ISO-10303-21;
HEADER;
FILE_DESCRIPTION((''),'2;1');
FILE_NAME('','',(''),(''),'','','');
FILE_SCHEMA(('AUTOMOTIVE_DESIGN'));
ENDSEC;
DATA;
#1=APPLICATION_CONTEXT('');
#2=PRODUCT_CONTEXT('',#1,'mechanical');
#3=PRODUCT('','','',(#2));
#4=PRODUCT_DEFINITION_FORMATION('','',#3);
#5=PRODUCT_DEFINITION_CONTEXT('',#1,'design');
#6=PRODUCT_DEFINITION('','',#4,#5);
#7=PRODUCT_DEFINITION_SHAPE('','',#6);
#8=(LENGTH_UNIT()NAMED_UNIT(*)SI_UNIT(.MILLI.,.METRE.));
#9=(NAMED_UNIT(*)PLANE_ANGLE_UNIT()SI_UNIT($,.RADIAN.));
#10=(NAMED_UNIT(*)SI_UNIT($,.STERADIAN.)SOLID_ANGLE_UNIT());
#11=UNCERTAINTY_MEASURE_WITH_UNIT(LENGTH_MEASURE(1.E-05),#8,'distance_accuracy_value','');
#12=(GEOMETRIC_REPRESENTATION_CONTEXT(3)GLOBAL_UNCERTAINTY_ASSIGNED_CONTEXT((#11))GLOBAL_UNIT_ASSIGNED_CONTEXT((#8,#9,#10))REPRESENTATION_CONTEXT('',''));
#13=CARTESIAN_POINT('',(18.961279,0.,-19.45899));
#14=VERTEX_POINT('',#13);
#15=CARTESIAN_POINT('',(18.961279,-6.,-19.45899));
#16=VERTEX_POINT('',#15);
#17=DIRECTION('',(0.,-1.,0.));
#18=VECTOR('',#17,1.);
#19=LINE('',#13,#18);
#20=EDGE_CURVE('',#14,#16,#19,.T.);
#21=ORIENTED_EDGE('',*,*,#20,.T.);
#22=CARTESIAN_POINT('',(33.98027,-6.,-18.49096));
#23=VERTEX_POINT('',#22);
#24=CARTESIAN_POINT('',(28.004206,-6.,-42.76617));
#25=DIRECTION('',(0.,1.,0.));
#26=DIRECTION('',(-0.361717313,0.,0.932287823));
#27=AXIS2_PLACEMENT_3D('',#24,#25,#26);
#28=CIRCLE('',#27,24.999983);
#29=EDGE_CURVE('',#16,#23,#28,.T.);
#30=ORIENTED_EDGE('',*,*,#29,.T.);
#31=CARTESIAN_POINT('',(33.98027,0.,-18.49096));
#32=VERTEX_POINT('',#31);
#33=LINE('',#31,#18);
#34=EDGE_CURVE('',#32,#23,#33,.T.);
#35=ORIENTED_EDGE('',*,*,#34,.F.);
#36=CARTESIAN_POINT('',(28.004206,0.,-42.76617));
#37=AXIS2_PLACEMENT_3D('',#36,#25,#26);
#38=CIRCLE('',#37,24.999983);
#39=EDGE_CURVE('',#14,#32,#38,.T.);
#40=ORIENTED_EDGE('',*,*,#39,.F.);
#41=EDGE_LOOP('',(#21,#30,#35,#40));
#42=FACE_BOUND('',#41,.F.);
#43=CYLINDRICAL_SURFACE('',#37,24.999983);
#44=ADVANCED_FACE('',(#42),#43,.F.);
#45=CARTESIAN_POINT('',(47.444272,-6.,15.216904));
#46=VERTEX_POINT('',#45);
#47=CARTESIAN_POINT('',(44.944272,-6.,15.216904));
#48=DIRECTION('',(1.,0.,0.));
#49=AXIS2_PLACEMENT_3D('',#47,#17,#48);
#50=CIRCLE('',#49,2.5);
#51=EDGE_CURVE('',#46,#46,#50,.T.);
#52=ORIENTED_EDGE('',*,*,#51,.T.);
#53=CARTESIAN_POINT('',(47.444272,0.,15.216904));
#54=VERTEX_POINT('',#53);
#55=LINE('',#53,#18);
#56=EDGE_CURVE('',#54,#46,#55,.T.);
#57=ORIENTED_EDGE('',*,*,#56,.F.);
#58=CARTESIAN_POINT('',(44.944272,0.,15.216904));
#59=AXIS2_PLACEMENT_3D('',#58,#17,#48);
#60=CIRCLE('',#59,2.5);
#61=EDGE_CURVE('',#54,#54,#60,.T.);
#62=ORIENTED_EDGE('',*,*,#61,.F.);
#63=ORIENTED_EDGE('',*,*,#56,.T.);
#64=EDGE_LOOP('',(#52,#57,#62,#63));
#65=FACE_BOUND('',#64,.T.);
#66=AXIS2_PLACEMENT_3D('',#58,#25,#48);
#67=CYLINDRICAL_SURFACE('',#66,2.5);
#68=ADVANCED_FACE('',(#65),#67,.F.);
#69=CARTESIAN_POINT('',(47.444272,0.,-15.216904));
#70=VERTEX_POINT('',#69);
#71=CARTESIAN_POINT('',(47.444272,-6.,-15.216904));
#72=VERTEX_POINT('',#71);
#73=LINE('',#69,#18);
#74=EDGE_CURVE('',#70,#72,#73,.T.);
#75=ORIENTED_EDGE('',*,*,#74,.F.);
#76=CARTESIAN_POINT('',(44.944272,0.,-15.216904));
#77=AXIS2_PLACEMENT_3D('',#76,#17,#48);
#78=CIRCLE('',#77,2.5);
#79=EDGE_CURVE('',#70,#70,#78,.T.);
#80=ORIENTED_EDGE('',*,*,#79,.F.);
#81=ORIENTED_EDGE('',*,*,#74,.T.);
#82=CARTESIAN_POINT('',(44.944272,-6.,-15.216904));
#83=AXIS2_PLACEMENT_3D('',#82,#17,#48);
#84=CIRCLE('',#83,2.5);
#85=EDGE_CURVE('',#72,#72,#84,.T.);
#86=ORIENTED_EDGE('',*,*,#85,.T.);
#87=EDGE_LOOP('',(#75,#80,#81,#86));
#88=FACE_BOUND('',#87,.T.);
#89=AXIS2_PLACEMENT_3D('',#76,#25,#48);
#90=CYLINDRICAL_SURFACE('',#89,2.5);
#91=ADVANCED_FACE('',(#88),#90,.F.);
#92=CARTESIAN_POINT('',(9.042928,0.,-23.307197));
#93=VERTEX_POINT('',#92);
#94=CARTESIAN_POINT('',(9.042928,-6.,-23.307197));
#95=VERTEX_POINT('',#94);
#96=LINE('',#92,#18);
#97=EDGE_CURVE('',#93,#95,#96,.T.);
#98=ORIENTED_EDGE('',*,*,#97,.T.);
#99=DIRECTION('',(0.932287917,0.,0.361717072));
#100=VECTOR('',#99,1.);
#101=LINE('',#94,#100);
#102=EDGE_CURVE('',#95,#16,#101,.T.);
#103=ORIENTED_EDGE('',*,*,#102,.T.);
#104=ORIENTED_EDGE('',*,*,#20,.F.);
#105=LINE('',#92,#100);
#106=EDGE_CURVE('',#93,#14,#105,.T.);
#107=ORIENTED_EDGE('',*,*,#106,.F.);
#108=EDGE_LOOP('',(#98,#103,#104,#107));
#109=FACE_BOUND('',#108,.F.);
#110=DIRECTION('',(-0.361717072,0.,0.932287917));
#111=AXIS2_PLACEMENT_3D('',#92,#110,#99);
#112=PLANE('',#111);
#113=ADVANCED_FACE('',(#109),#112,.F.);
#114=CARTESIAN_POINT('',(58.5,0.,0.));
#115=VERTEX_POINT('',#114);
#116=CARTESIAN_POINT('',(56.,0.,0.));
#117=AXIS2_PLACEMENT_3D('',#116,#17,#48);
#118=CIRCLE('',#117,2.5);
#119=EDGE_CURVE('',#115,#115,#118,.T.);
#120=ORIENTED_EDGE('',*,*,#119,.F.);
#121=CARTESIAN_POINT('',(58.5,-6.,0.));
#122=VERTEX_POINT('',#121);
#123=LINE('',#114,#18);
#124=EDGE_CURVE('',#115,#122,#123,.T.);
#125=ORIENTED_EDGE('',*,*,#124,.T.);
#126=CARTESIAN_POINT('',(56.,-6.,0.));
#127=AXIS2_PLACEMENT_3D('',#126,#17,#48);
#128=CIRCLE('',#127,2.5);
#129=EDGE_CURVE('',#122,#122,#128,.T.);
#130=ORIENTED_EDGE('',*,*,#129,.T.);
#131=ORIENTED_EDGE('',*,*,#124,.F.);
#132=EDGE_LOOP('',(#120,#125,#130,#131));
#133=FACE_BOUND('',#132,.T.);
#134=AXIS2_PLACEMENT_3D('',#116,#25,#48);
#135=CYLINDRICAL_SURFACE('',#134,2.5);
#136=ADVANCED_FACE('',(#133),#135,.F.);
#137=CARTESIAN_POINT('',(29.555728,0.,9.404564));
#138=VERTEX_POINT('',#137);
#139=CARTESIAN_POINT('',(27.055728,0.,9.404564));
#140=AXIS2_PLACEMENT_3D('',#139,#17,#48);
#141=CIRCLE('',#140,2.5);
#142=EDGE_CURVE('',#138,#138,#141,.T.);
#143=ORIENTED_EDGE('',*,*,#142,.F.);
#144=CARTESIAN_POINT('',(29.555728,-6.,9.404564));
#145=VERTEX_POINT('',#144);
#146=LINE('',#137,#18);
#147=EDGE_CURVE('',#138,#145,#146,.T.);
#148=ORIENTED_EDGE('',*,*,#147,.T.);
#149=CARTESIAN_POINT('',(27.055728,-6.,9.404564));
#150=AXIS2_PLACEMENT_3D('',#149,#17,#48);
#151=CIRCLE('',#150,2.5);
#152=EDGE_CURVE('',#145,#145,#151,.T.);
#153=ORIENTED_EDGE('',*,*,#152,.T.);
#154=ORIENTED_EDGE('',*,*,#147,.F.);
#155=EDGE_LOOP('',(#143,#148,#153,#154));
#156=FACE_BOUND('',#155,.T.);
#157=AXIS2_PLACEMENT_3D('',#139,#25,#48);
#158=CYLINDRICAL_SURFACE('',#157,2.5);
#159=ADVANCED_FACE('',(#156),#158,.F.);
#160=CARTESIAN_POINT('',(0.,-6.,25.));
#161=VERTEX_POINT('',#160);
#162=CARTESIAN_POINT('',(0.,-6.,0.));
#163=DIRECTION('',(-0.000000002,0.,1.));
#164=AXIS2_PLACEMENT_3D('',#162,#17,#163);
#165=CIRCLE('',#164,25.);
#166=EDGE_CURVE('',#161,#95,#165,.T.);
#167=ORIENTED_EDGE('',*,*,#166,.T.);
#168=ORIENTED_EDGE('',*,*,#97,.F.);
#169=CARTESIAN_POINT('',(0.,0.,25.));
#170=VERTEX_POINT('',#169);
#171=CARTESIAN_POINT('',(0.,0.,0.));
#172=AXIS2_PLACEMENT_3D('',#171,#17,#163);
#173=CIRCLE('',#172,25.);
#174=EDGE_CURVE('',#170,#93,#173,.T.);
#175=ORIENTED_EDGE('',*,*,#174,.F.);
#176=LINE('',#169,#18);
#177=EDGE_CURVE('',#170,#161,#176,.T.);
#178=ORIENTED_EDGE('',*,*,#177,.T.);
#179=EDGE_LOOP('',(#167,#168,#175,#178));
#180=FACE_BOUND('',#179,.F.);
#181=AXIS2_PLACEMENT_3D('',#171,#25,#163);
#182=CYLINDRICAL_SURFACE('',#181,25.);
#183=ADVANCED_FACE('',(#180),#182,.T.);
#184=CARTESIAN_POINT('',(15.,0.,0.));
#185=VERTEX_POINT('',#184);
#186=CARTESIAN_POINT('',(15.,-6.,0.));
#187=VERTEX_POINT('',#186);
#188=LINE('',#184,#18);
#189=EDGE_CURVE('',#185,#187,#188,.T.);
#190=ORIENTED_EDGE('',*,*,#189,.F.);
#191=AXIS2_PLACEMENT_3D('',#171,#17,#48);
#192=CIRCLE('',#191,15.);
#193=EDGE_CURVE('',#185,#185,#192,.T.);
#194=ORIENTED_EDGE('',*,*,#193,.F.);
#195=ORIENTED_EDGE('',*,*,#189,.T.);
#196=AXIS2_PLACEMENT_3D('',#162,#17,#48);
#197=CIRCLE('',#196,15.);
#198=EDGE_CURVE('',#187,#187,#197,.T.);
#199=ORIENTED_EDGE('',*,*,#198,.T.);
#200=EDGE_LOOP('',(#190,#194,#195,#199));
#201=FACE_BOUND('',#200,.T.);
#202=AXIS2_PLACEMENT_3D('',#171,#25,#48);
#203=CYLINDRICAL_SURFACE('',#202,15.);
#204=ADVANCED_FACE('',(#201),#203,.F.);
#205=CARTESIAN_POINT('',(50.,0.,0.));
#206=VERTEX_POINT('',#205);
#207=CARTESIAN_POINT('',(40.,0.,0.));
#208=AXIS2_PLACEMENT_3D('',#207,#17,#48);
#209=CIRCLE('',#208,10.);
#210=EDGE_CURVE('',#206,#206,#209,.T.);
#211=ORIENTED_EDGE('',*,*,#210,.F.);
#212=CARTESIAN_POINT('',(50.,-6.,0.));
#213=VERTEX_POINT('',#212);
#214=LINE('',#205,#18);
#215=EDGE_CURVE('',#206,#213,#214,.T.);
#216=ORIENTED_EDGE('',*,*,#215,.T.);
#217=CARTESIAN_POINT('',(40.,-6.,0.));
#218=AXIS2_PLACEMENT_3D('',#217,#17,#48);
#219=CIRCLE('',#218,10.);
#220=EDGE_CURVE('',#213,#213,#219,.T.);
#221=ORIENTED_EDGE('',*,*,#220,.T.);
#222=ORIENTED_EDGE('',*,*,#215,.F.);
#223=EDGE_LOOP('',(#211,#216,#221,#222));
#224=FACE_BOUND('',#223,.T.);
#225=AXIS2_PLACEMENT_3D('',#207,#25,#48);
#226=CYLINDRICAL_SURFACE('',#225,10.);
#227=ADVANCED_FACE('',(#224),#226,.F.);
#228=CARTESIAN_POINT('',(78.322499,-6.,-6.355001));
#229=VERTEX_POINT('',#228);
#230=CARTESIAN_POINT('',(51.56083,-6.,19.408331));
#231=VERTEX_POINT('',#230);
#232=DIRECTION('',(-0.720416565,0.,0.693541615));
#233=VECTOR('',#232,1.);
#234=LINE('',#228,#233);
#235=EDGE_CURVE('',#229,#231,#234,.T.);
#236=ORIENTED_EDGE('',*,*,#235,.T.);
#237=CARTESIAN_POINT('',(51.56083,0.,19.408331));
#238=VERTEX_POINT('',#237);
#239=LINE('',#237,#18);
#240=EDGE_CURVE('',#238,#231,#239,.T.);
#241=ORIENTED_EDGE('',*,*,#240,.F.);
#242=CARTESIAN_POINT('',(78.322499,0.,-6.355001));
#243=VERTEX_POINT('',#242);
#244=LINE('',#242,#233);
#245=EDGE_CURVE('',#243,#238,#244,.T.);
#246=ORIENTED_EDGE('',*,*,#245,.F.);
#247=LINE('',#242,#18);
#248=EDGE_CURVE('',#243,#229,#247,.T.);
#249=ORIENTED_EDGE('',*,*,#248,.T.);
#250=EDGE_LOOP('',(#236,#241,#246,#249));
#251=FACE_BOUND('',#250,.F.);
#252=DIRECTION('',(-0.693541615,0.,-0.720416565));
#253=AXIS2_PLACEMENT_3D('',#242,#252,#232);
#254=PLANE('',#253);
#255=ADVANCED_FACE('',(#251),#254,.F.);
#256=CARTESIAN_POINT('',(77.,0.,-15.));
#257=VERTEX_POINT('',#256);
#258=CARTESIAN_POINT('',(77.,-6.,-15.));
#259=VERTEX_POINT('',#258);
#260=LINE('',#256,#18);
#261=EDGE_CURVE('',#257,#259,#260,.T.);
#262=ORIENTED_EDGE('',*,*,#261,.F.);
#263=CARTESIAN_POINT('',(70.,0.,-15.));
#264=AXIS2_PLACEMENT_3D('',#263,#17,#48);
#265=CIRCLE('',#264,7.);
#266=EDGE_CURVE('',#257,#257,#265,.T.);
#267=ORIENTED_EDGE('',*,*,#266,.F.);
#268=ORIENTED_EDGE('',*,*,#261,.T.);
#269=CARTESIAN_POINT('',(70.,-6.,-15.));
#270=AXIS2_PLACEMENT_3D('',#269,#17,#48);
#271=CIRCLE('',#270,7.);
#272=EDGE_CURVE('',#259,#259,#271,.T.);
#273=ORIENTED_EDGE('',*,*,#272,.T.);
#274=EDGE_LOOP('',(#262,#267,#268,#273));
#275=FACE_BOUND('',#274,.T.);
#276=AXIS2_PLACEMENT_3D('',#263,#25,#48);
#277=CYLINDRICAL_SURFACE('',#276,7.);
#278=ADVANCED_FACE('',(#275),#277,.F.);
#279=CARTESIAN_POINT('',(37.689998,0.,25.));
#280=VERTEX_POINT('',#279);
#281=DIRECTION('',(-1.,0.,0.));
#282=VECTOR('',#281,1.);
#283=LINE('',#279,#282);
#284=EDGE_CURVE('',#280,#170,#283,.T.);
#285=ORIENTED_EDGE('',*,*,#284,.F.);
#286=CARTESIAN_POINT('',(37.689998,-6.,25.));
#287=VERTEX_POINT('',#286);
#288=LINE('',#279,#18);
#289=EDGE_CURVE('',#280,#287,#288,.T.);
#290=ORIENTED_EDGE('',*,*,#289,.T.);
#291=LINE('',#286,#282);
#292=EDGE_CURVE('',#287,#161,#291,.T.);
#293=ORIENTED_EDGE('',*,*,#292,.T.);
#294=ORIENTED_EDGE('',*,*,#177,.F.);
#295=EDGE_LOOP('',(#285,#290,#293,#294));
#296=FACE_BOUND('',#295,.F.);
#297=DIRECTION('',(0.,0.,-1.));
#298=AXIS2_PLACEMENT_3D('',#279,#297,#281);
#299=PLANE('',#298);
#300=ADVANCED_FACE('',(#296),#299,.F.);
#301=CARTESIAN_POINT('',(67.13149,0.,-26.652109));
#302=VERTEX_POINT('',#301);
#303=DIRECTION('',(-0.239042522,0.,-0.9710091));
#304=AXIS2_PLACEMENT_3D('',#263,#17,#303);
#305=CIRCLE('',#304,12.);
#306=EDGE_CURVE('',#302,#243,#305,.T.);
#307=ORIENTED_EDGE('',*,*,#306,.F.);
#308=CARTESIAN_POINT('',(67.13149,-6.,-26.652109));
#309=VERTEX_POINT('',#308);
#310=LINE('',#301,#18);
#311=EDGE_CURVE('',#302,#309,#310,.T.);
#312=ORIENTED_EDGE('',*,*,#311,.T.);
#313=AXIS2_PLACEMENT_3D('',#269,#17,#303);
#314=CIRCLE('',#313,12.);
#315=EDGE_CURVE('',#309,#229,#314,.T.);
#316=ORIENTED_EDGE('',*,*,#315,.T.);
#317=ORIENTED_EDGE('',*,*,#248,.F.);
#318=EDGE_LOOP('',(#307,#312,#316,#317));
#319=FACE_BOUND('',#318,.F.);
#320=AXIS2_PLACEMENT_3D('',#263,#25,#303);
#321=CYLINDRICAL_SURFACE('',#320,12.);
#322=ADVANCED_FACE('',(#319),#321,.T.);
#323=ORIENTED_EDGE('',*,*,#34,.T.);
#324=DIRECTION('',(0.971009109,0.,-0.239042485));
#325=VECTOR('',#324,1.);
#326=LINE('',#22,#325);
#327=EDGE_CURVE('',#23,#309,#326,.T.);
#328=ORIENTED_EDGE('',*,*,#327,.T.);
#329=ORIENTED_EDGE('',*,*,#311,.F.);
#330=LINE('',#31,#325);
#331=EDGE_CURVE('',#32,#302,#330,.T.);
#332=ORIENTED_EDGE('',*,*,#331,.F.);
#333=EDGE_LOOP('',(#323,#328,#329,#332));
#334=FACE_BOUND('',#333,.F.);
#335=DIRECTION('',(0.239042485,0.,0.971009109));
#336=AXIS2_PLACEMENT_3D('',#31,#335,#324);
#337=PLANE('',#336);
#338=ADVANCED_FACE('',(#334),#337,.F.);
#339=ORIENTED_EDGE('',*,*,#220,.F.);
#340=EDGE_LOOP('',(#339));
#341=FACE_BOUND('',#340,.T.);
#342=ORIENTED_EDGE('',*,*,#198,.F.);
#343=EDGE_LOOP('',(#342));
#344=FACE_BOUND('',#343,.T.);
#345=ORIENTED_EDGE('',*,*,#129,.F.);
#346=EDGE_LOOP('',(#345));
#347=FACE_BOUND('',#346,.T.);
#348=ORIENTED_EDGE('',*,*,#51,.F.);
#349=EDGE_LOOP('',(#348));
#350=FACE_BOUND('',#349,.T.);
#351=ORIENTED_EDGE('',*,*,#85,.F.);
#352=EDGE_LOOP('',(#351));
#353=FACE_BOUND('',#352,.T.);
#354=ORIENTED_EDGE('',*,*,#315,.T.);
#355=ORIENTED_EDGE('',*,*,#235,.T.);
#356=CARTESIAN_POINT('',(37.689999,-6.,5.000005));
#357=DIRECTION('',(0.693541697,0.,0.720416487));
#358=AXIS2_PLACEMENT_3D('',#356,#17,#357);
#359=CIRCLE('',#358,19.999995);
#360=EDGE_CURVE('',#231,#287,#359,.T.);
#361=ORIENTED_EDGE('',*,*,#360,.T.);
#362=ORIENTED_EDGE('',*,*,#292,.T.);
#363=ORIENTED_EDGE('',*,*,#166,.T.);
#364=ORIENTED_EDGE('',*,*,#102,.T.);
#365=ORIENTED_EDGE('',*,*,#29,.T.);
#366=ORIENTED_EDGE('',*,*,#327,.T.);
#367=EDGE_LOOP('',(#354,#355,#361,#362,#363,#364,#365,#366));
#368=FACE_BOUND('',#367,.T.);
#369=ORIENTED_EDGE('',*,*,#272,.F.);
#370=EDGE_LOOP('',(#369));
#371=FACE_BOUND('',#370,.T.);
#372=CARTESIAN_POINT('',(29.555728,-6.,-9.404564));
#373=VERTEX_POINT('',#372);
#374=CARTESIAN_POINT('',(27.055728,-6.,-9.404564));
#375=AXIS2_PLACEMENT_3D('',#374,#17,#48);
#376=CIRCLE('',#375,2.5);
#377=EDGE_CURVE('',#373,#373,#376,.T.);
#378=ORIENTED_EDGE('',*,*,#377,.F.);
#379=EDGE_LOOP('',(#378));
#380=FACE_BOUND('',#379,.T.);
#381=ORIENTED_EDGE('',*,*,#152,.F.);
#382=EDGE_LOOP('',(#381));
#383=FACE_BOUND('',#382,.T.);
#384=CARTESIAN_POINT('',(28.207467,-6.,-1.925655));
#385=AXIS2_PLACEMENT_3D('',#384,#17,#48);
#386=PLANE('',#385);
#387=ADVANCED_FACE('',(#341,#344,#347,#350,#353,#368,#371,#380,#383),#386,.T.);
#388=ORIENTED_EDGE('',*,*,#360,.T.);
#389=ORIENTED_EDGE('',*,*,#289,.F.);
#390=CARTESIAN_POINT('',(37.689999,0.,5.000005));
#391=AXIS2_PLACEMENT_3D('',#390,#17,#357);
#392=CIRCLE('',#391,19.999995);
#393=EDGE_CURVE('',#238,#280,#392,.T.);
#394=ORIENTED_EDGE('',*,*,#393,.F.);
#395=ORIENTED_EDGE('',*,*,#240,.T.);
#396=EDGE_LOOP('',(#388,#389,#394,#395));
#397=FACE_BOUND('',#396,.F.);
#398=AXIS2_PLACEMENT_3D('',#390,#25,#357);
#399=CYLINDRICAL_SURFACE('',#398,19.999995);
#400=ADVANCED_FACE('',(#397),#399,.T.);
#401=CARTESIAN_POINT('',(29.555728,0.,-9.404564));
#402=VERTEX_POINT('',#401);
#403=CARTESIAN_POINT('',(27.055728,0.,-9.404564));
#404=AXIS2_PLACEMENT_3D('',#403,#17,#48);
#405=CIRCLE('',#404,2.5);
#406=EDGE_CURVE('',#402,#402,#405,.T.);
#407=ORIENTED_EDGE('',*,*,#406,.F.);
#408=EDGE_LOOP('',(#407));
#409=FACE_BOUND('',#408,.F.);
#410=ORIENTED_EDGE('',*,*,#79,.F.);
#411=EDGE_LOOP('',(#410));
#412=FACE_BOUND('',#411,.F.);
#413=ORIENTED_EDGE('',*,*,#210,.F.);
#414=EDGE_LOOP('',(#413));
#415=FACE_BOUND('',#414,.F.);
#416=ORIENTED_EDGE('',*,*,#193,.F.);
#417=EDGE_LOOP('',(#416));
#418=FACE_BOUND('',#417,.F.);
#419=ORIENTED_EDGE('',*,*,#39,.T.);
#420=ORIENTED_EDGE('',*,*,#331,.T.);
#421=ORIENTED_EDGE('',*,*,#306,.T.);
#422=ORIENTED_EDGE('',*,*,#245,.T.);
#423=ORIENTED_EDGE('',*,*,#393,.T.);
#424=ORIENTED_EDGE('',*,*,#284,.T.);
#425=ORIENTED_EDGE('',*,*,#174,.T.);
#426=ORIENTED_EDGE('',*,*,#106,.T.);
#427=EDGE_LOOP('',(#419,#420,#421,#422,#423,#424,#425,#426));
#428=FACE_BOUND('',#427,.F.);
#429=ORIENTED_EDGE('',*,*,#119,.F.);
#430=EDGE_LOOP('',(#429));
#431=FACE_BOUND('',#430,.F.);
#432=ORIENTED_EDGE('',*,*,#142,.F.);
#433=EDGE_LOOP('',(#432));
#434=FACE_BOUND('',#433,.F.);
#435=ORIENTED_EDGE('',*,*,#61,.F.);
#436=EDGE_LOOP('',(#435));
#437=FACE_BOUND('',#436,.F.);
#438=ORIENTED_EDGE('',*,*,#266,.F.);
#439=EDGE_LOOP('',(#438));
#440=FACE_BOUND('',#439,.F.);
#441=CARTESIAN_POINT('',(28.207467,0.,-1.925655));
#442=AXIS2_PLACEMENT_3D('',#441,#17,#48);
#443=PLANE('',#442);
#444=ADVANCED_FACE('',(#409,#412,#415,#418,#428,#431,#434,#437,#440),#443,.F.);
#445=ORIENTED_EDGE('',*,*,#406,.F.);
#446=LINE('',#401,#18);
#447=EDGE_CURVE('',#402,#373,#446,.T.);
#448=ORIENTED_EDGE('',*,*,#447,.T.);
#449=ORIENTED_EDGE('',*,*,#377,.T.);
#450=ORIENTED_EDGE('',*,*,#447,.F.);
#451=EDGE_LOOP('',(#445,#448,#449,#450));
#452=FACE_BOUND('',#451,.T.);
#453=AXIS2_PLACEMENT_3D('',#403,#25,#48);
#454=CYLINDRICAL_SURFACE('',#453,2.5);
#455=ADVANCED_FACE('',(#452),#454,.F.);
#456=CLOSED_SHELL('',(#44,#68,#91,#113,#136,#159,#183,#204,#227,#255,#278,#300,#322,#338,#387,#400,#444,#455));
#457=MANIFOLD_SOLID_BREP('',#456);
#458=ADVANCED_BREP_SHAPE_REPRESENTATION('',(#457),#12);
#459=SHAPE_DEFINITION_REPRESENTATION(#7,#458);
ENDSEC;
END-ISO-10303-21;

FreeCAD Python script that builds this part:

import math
import FreeCAD as App
import Part
import Sketcher
Q = App.Units.Quantity

doc = App.newDocument("Part")
body = doc.addObject("PartDesign::Body", "Body")

# Sketch on XZ plane
sketch1 = body.newObject("Sketcher::SketchObject", "Sketch")
sketch1.AttachmentSupport = (doc.getObject("XZ_Plane"), [""])
sketch1.MapMode = "FlatFace"
sketch1.addGeometry([
    Part.LineSegment(App.Vector(37.7, 25, 0), App.Vector(0, 25, 0)),  # 0
    Part.ArcOfCircle(Part.Circle(App.Vector(0, 0, 0), App.Vector(0, 0, 1), 25), math.radians(90), math.radians(291)),  # 1
    Part.LineSegment(App.Vector(9, -23.3, 0), App.Vector(19, -19.5, 0)),  # 2
    Part.ArcOfCircle(Part.Circle(App.Vector(28, -42.8, 0), App.Vector(0, 0, 1), 25), math.radians(76), math.radians(111)),  # 3
    Part.LineSegment(App.Vector(34, -18.5, 0), App.Vector(67.1, -26.7, 0)),  # 4
    Part.ArcOfCircle(Part.Circle(App.Vector(70, -15, 0), App.Vector(0, 0, 1), 12), math.radians(-104), math.radians(46)),  # 5
    Part.LineSegment(App.Vector(78.3, -6.4, 0), App.Vector(51.6, 19.4, 0)),  # 6
    Part.ArcOfCircle(Part.Circle(App.Vector(37.7, 5, 0), App.Vector(0, 0, 1), 20), math.radians(46), math.radians(90)),  # 7
    Part.Circle(App.Vector(27.1, -9.4, 0), App.Vector(0, 0, 1), 2.5),  # 8
    Part.Circle(App.Vector(44.9, -15.2, 0), App.Vector(0, 0, 1), 2.5),  # 9
    Part.Circle(App.Vector(70, -15, 0), App.Vector(0, 0, 1), 7),  # 10
    Part.Circle(App.Vector(0, 0, 0), App.Vector(0, 0, 1), 15),  # 11
    Part.Circle(App.Vector(27.1, 9.4, 0), App.Vector(0, 0, 1), 2.5),  # 12
    Part.Circle(App.Vector(40, 0, 0), App.Vector(0, 0, 1), 10),  # 13
    Part.Circle(App.Vector(56, 0, 0), App.Vector(0, 0, 1), 2.5),  # 14
    Part.Circle(App.Vector(44.9, 15.2, 0), App.Vector(0, 0, 1), 2.5),  # 15
], False)
sketch1.addConstraint([
    Sketcher.Constraint("Tangent", 0, 2, 1, 1),
    Sketcher.Constraint("Tangent", 1, 2, 2, 1),
    Sketcher.Constraint("Tangent", 2, 2, 3, 2),
    Sketcher.Constraint("Tangent", 3, 1, 4, 1),
    Sketcher.Constraint("Tangent", 4, 2, 5, 1),
    Sketcher.Constraint("Tangent", 5, 2, 6, 1),
    Sketcher.Constraint("Tangent", 6, 2, 7, 1),
    Sketcher.Constraint("Tangent", 7, 2, 0, 1),
    Sketcher.Constraint("Horizontal", 0),
    Sketcher.Constraint("Coincident", 1, 3, -1, 1),
    Sketcher.Constraint("Coincident", 11, 3, -1, 1),
    Sketcher.Constraint("Coincident", 10, 3, 5, 3),
    Sketcher.Constraint("Equal", 8, 9),
    Sketcher.Constraint("Equal", 9, 12),
    Sketcher.Constraint("Equal", 12, 14),
    Sketcher.Constraint("Equal", 14, 15),
    Sketcher.Constraint("Symmetric", 8, 3, 12, 3, -1),
    Sketcher.Constraint("Symmetric", 9, 3, 15, 3, -1),
    Sketcher.Constraint("PointOnObject", 13, 3, -1),
    Sketcher.Constraint("PointOnObject", 14, 3, -1),
    Sketcher.Constraint("Diameter", 8, Q("5 mm")),
    Sketcher.Constraint("Diameter", 10, Q("14 mm")),
    Sketcher.Constraint("Diameter", 11, Q("30 mm")),
    Sketcher.Constraint("Diameter", 13, Q("20 mm")),
    Sketcher.Constraint("Radius", 1, Q("25 mm")),
    Sketcher.Constraint("Radius", 5, Q("12 mm")),
    Sketcher.Constraint("DistanceX", -1, 1, 5, 3, Q("70 mm")),
    Sketcher.Constraint("DistanceY", 5, 3, -1, 1, Q("15 mm")),
    Sketcher.Constraint("DistanceX", -1, 1, 13, 3, Q("40 mm")),
    Sketcher.Constraint("DistanceX", -1, 1, 14, 3, Q("56 mm")),
    Sketcher.Constraint("DistanceX", 0, 2, 0, 1, Q("37.689998 mm")),
    Sketcher.Constraint("DistanceY", 5, 2, -1, 1, Q("6.355001 mm")),
    Sketcher.Constraint("Radius", 3, Q("24.999983 mm")),
    Sketcher.Constraint("DistanceY", 7, 3, 15, 3, Q("10.216899 mm")),
    Sketcher.Constraint("DistanceX", 1, 2, 8, 3, Q("18.0128 mm")),
    Sketcher.Constraint("Distance", 2, Q("10.638721 mm")),
    Sketcher.Constraint("DistanceY", 3, 3, -1, 1, Q("42.76617 mm")),
    Sketcher.Constraint("DistanceX", -1, 1, 9, 3, Q("44.944272 mm")),
    Sketcher.Constraint("DistanceY", 8, 3, 7, 3, Q("14.404569 mm")),
])
pad1 = body.newObject("PartDesign::Pad", "Pad")
pad1.Profile = sketch1
pad1.Length = 6

doc.recompute()
